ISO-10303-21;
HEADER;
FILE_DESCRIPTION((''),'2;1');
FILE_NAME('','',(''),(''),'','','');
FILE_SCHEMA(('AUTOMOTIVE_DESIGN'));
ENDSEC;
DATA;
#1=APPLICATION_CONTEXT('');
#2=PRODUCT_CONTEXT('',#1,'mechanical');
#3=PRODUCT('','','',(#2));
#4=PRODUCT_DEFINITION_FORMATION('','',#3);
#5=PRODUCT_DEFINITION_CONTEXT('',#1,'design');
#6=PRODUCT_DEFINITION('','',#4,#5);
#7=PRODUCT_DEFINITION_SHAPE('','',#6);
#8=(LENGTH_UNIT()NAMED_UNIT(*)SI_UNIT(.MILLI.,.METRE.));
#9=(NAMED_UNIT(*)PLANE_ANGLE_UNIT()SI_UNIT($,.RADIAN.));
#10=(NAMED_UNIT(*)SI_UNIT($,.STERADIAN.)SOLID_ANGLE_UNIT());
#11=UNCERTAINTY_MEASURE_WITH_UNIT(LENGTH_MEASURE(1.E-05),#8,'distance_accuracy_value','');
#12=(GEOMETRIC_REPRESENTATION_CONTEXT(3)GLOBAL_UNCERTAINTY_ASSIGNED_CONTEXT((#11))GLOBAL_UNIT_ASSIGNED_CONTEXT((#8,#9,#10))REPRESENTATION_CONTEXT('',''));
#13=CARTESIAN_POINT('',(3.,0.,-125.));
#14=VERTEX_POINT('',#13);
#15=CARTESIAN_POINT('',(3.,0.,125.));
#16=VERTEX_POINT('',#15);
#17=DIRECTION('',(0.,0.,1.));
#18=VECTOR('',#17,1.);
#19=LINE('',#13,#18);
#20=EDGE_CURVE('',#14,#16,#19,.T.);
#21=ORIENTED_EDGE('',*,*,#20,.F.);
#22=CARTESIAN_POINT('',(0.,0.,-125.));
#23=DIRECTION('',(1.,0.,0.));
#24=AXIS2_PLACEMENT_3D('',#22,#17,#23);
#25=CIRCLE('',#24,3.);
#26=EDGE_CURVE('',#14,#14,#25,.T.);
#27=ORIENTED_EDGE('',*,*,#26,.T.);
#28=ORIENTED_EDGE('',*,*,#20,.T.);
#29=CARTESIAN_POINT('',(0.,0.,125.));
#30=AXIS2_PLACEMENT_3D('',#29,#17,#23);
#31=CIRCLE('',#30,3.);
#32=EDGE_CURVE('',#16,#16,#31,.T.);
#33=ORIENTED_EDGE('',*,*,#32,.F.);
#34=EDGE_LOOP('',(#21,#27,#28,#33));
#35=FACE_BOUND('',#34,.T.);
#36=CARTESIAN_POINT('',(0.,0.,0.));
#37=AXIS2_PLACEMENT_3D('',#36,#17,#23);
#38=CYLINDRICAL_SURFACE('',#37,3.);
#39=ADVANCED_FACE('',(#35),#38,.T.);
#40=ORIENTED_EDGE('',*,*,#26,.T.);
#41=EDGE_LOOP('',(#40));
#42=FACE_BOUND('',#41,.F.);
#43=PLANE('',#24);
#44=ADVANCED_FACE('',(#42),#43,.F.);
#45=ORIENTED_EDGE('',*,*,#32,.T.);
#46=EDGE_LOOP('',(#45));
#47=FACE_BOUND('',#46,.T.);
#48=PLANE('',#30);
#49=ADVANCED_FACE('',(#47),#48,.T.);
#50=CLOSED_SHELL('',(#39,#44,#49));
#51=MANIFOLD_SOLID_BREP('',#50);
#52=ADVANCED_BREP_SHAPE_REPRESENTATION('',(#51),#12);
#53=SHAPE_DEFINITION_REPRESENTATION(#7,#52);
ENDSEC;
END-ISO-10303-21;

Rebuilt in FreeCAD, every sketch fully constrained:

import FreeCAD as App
import Part
import Sketcher
from FreeCAD import Vector
Q = App.Units.Quantity

doc = App.newDocument("Part")
body = doc.addObject("PartDesign::Body", "Body")

# Sketch on XY plane
sketch1 = body.newObject("Sketcher::SketchObject", "Sketch")
sketch1.AttachmentSupport = (doc.getObject("XY_Plane"), [""])
sketch1.MapMode = "FlatFace"
sketch1.addGeometry(Part.Circle(Vector(0, 0, 0), Vector(0, 0, 1), 3), False)
sketch1.addConstraint([
    Sketcher.Constraint("Coincident", 0, 3, -1, 1),
    Sketcher.Constraint("Diameter", 0, Q("6 mm")),
])
pad1 = body.newObject("PartDesign::Pad", "Pad")
pad1.Profile = sketch1
pad1.Length = 250
pad1.Midplane = True

doc.recompute()
